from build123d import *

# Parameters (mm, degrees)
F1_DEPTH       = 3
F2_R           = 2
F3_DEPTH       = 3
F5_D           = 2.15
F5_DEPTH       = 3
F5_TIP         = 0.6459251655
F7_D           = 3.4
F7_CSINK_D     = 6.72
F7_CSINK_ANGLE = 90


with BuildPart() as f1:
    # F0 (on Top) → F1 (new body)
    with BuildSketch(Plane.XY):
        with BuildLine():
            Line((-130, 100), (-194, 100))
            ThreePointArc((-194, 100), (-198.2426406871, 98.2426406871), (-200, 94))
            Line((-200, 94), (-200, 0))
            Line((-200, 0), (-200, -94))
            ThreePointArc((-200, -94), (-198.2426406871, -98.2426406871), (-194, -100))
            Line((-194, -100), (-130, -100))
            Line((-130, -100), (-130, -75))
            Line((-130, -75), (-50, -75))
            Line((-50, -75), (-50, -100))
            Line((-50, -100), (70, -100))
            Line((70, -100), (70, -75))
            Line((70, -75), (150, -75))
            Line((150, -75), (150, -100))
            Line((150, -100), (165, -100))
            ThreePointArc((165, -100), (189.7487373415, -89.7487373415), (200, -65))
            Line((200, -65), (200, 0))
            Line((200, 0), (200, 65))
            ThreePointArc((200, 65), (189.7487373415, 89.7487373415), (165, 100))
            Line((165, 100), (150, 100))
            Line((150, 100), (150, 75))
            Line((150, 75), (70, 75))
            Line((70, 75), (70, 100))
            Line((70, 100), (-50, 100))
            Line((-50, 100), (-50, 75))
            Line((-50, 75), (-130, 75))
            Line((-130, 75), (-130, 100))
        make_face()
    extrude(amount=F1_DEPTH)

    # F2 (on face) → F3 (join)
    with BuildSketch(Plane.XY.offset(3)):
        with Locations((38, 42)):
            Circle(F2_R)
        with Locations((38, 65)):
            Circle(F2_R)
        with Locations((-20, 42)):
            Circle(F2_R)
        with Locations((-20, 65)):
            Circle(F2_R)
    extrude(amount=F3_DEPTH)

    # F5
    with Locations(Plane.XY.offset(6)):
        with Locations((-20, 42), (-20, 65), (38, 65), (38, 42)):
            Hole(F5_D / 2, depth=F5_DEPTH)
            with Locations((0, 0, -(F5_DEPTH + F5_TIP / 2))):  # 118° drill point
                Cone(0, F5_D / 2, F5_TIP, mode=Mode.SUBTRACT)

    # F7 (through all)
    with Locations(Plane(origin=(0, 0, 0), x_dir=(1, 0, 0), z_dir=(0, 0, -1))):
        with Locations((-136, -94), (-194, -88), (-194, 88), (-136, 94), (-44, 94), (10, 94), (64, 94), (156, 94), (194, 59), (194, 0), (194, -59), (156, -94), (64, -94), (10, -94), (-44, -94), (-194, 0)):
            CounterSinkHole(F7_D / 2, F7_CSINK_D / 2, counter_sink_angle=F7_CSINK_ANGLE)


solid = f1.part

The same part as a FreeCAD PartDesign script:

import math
import FreeCAD as App
import Part
import Sketcher
from FreeCAD import Vector
Q = App.Units.Quantity

doc = App.newDocument("Part")
body = doc.addObject("PartDesign::Body", "Body")

# Sketch on XY plane
sketch1 = body.newObject("Sketcher::SketchObject", "Sketch")
sketch1.AttachmentSupport = (doc.getObject("XY_Plane"), [""])
sketch1.MapMode = "FlatFace"
sketch1.addGeometry([
    Part.LineSegment(Vector(-130, 100, 0), Vector(-194, 100, 0)),  # 0
    Part.ArcOfCircle(Part.Circle(Vector(-194, 94, 0), Vector(0, 0, 1), 6), math.radians(90), math.radians(180)),  # 1
    Part.LineSegment(Vector(-200, 94, 0), Vector(-200, -94, 0)),  # 2
    Part.ArcOfCircle(Part.Circle(Vector(-194, -94, 0), Vector(0, 0, 1), 6), math.radians(180), math.radians(270)),  # 3
    Part.LineSegment(Vector(-194, -100, 0), Vector(-130, -100, 0)),  # 4
    Part.LineSegment(Vector(-130, -100, 0), Vector(-130, -75, 0)),  # 5
    Part.LineSegment(Vector(-130, -75, 0), Vector(-50, -75, 0)),  # 6
    Part.LineSegment(Vector(-50, -75, 0), Vector(-50, -100, 0)),  # 7
    Part.LineSegment(Vector(-50, -100, 0), Vector(70, -100, 0)),  # 8
    Part.LineSegment(Vector(70, -100, 0), Vector(70, -75, 0)),  # 9
    Part.LineSegment(Vector(70, -75, 0), Vector(150, -75, 0)),  # 10
    Part.LineSegment(Vector(150, -75, 0), Vector(150, -100, 0)),  # 11
    Part.LineSegment(Vector(150, -100, 0), Vector(165, -100, 0)),  # 12
    Part.ArcOfCircle(Part.Circle(Vector(165, -65, 0), Vector(0, 0, 1), 35), math.radians(-90), math.radians(0)),  # 13
    Part.LineSegment(Vector(200, -65, 0), Vector(200, 65, 0)),  # 14
    Part.ArcOfCircle(Part.Circle(Vector(165, 65, 0), Vector(0, 0, 1), 35), math.radians(0), math.radians(90)),  # 15
    Part.LineSegment(Vector(165, 100, 0), Vector(150, 100, 0)),  # 16
    Part.LineSegment(Vector(150, 100, 0), Vector(150, 75, 0)),  # 17
    Part.LineSegment(Vector(150, 75, 0), Vector(70, 75, 0)),  # 18
    Part.LineSegment(Vector(70, 75, 0), Vector(70, 100, 0)),  # 19
    Part.LineSegment(Vector(70, 100, 0), Vector(-50, 100, 0)),  # 20
    Part.LineSegment(Vector(-50, 100, 0), Vector(-50, 75, 0)),  # 21
    Part.LineSegment(Vector(-50, 75, 0), Vector(-130, 75, 0)),  # 22
    Part.LineSegment(Vector(-130, 75, 0), Vector(-130, 100, 0)),  # 23
], False)
sketch1.addConstraint([
    Sketcher.Constraint("Tangent", 0, 2, 1, 1),
    Sketcher.Constraint("Tangent", 1, 2, 2, 1),
    Sketcher.Constraint("Tangent", 2, 2, 3, 1),
    Sketcher.Constraint("Tangent", 3, 2, 4, 1),
    Sketcher.Constraint("Coincident", 4, 2, 5, 1),
    Sketcher.Constraint("Coincident", 5, 2, 6, 1),
    Sketcher.Constraint("Coincident", 6, 2, 7, 1),
    Sketcher.Constraint("Coincident", 7, 2, 8, 1),
    Sketcher.Constraint("Coincident", 8, 2, 9, 1),
    Sketcher.Constraint("Coincident", 9, 2, 10, 1),
    Sketcher.Constraint("Coincident", 10, 2, 11, 1),
    Sketcher.Constraint("Coincident", 11, 2, 12, 1),
    Sketcher.Constraint("Tangent", 12, 2, 13, 1),
    Sketcher.Constraint("Tangent", 13, 2, 14, 1),
    Sketcher.Constraint("Tangent", 14, 2, 15, 1),
    Sketcher.Constraint("Tangent", 15, 2, 16, 1),
    Sketcher.Constraint("Coincident", 16, 2, 17, 1),
    Sketcher.Constraint("Coincident", 17, 2, 18, 1),
    Sketcher.Constraint("Coincident", 18, 2, 19, 1),
    Sketcher.Constraint("Coincident", 19, 2, 20, 1),
    Sketcher.Constraint("Coincident", 20, 2, 21, 1),
    Sketcher.Constraint("Coincident", 21, 2, 22, 1),
    Sketcher.Constraint("Coincident", 22, 2, 23, 1),
    Sketcher.Constraint("Coincident", 23, 2, 0, 1),
    Sketcher.Constraint("Horizontal", 0),
    Sketcher.Constraint("Vertical", 2),
    Sketcher.Constraint("Horizontal", 4),
    Sketcher.Constraint("Vertical", 5),
    Sketcher.Constraint("Horizontal", 6),
    Sketcher.Constraint("Vertical", 7),
    Sketcher.Constraint("Horizontal", 8),
    Sketcher.Constraint("Vertical", 9),
    Sketcher.Constraint("Horizontal", 10),
    Sketcher.Constraint("Vertical", 11),
    Sketcher.Constraint("Horizontal", 12),
    Sketcher.Constraint("Vertical", 14),
    Sketcher.Constraint("Horizontal", 16),
    Sketcher.Constraint("Vertical", 17),
    Sketcher.Constraint("Horizontal", 18),
    Sketcher.Constraint("Vertical", 19),
    Sketcher.Constraint("Horizontal", 20),
    Sketcher.Constraint("Vertical", 21),
    Sketcher.Constraint("Horizontal", 22),
    Sketcher.Constraint("Vertical", 23),
    Sketcher.Constraint("Equal", 1, 3),
    Sketcher.Constraint("Equal", 13, 15),
    Sketcher.Constraint("Symmetric", 11, 2, 16, 2, -1),
    Sketcher.Constraint("Symmetric", 9, 2, 18, 2, -1),
    Sketcher.Constraint("Symmetric", 7, 2, 20, 2, -1),
    Sketcher.Constraint("Symmetric", 5, 2, 22, 2, -1),
    Sketcher.Constraint("Horizontal", 4, 2, 7, 2),
    Sketcher.Constraint("Horizontal", 6, 2, 9, 2),
    Sketcher.Constraint("Horizontal", 8, 2, 11, 2),
    Sketcher.Constraint("Horizontal", 0, 2, 15, 2),
    Sketcher.Constraint("Equal", 6, 10),
    Sketcher.Constraint("Radius", 1, Q("6 mm")),
    Sketcher.Constraint("Radius", 13, Q("35 mm")),
    Sketcher.Constraint("DistanceX", 0, 2, 0, 1, Q("64 mm")),
    Sketcher.Constraint("DistanceX", 6, 1, 6, 2, Q("80 mm")),
    Sketcher.Constraint("DistanceX", 8, 1, 8, 2, Q("120 mm")),
    Sketcher.Constraint("DistanceX", 12, 1, 12, 2, Q("15 mm")),
    Sketcher.Constraint("DistanceY", 2, 2, 2, 1, Q("188 mm")),
    Sketcher.Constraint("DistanceY", 5, 1, 5, 2, Q("25 mm")),
    Sketcher.Constraint("DistanceX", 1, 3, -1, 1, Q("194 mm")),
])
pad1 = body.newObject("PartDesign::Pad", "Pad")
pad1.Profile = sketch1
pad1.Length = 3

# Sketch on XY plane
sketch2 = body.newObject("Sketcher::SketchObject", "Sketch001")
sketch2.AttachmentSupport = (doc.getObject("XY_Plane"), [""])
sketch2.MapMode = "FlatFace"
sketch2.AttachmentOffset = App.Placement(Vector(0, 0, 3), App.Rotation())
sketch2.addGeometry([
    Part.Circle(Vector(38, 42, 0), Vector(0, 0, 1), 2),
    Part.Circle(Vector(38, 65, 0), Vector(0, 0, 1), 2),
    Part.Circle(Vector(-20, 42, 0), Vector(0, 0, 1), 2),
    Part.Circle(Vector(-20, 65, 0), Vector(0, 0, 1), 2),
], False)
sketch2.addConstraint([
    Sketcher.Constraint("Equal", 0, 1),
    Sketcher.Constraint("Equal", 1, 2),
    Sketcher.Constraint("Equal", 2, 3),
    Sketcher.Constraint("Horizontal", 0, 3, 2, 3),
    Sketcher.Constraint("Horizontal", 1, 3, 3, 3),
    Sketcher.Constraint("Vertical", 0, 3, 1, 3),
    Sketcher.Constraint("Vertical", 2, 3, 3, 3),
    Sketcher.Constraint("Diameter", 0, Q("4 mm")),
    Sketcher.Constraint("DistanceX", -1, 1, 0, 3, Q("38 mm")),
    Sketcher.Constraint("DistanceY", -1, 1, 0, 3, Q("42 mm")),
    Sketcher.Constraint("DistanceY", -1, 1, 1, 3, Q("65 mm")),
    Sketcher.Constraint("DistanceX", 2, 3, -1, 1, Q("20 mm")),
])
pad2 = body.newObject("PartDesign::Pad", "Pad001")
pad2.Profile = sketch2
pad2.Length = 3

# Sketch on XY plane
sketch3 = body.newObject("Sketcher::SketchObject", "Sketch002")
sketch3.AttachmentSupport = (doc.getObject("XY_Plane"), [""])
sketch3.MapMode = "FlatFace"
sketch3.AttachmentOffset = App.Placement(Vector(0, 0, 6), App.Rotation())
sketch3.addGeometry([
    Part.Circle(Vector(-20, 42, 0), Vector(0, 0, 1), 1.1),
    Part.Circle(Vector(-20, 65, 0), Vector(0, 0, 1), 1.1),
    Part.Circle(Vector(38, 65, 0), Vector(0, 0, 1), 1.1),
    Part.Circle(Vector(38, 42, 0), Vector(0, 0, 1), 1.1),
], False)
sketch3.addConstraint([
    Sketcher.Constraint("Equal", 0, 1),
    Sketcher.Constraint("Equal", 1, 2),
    Sketcher.Constraint("Equal", 2, 3),
    Sketcher.Constraint("Horizontal", 1, 3, 2, 3),
    Sketcher.Constraint("Horizontal", 0, 3, 3, 3),
    Sketcher.Constraint("Vertical", 0, 3, 1, 3),
    Sketcher.Constraint("Vertical", 2, 3, 3, 3),
    Sketcher.Constraint("Diameter", 0, Q("2.15 mm")),
    Sketcher.Constraint("DistanceX", 0, 3, -1, 1, Q("20 mm")),
    Sketcher.Constraint("DistanceY", -1, 1, 0, 3, Q("42 mm")),
    Sketcher.Constraint("DistanceY", -1, 1, 1, 3, Q("65 mm")),
    Sketcher.Constraint("DistanceX", -1, 1, 2, 3, Q("38 mm")),
])
doc.recompute()
hole = body.newObject("PartDesign::Hole", "Hole")
hole.Profile = sketch3
hole.ThreadType = "None"
hole.Diameter = 2.15
hole.DepthType = "Dimension"
hole.Depth = 3
hole.DrillPoint = "Angled"
hole.DrillPointAngle = 118

# Sketch on XY plane
sketch4 = body.newObject("Sketcher::SketchObject", "Sketch003")
sketch4.AttachmentSupport = (doc.getObject("XY_Plane"), [""])
sketch4.MapMode = "FlatFace"
sketch4.addGeometry([
    Part.Circle(Vector(-136, 94, 0), Vector(0, 0, 1), 1.7),  # 0
    Part.Circle(Vector(-194, 88, 0), Vector(0, 0, 1), 1.7),  # 1
    Part.Circle(Vector(-194, -88, 0), Vector(0, 0, 1), 1.7),  # 2
    Part.Circle(Vector(-136, -94, 0), Vector(0, 0, 1), 1.7),  # 3
    Part.Circle(Vector(-44, -94, 0), Vector(0, 0, 1), 1.7),  # 4
    Part.Circle(Vector(10, -94, 0), Vector(0, 0, 1), 1.7),  # 5
    Part.Circle(Vector(64, -94, 0), Vector(0, 0, 1), 1.7),  # 6
    Part.Circle(Vector(156, -94, 0), Vector(0, 0, 1), 1.7),  # 7
    Part.Circle(Vector(194, -59, 0), Vector(0, 0, 1), 1.7),  # 8
    Part.Circle(Vector(194, 0, 0), Vector(0, 0, 1), 1.7),  # 9
    Part.Circle(Vector(194, 59, 0), Vector(0, 0, 1), 1.7),  # 10
    Part.Circle(Vector(156, 94, 0), Vector(0, 0, 1), 1.7),  # 11
    Part.Circle(Vector(64, 94, 0), Vector(0, 0, 1), 1.7),  # 12
    Part.Circle(Vector(10, 94, 0), Vector(0, 0, 1), 1.7),  # 13
    Part.Circle(Vector(-44, 94, 0), Vector(0, 0, 1), 1.7),  # 14
    Part.Circle(Vector(-194, 0, 0), Vector(0, 0, 1), 1.7),  # 15
], False)
sketch4.addConstraint([
    Sketcher.Constraint("Equal", 0, 1),
    Sketcher.Constraint("Equal", 1, 2),
    Sketcher.Constraint("Equal", 2, 3),
    Sketcher.Constraint("Equal", 3, 4),
    Sketcher.Constraint("Equal", 4, 5),
    Sketcher.Constraint("Equal", 5, 6),
    Sketcher.Constraint("Equal", 6, 7),
    Sketcher.Constraint("Equal", 7, 8),
    Sketcher.Constraint("Equal", 8, 9),
    Sketcher.Constraint("Equal", 9, 10),
    Sketcher.Constraint("Equal", 10, 11),
    Sketcher.Constraint("Equal", 11, 12),
    Sketcher.Constraint("Equal", 12, 13),
    Sketcher.Constraint("Equal", 13, 14),
    Sketcher.Constraint("Equal", 14, 15),
    Sketcher.Constraint("Symmetric", 9, 3, 15, 3, -1, 1),
    Sketcher.Constraint("Symmetric", 1, 3, 2, 3, -1),
    Sketcher.Constraint("Symmetric", 0, 3, 3, 3, -1),
    Sketcher.Constraint("Symmetric", 8, 3, 10, 3, -1),
    Sketcher.Constraint("Symmetric", 7, 3, 11, 3, -1),
    Sketcher.Constraint("Symmetric", 6, 3, 12, 3, -1),
    Sketcher.Constraint("Symmetric", 5, 3, 13, 3, -1),
    Sketcher.Constraint("Symmetric", 4, 3, 14, 3, -1),
    Sketcher.Constraint("PointOnObject", 9, 3, -1),
    Sketcher.Constraint("Horizontal", 3, 3, 4, 3),
    Sketcher.Constraint("Horizontal", 4, 3, 5, 3),
    Sketcher.Constraint("Horizontal", 5, 3, 6, 3),
    Sketcher.Constraint("Horizontal", 6, 3, 7, 3),
    Sketcher.Constraint("Vertical", 8, 3, 9, 3),
    Sketcher.Constraint("Vertical", 2, 3, 15, 3),
    Sketcher.Constraint("Diameter", 0, Q("3.4 mm")),
    Sketcher.Constraint("DistanceX", 0, 3, -1, 1, Q("136 mm")),
    Sketcher.Constraint("DistanceY", -1, 1, 0, 3, Q("94 mm")),
    Sketcher.Constraint("DistanceX", 1, 3, -1, 1, Q("194 mm")),
    Sketcher.Constraint("DistanceY", -1, 1, 1, 3, Q("88 mm")),
    Sketcher.Constraint("DistanceX", 4, 3, -1, 1, Q("44 mm")),
    Sketcher.Constraint("DistanceX", -1, 1, 5, 3, Q("10 mm")),
    Sketcher.Constraint("DistanceX", -1, 1, 6, 3, Q("64 mm")),
    Sketcher.Constraint("DistanceX", -1, 1, 7, 3, Q("156 mm")),
    Sketcher.Constraint("DistanceY", 8, 3, -1, 1, Q("59 mm")),
])
doc.recompute()
hole2 = body.newObject("PartDesign::Hole", "Hole001")
hole2.Profile = sketch4
hole2.ThreadType = "None"
hole2.Diameter = 3.4
hole2.DepthType = "ThroughAll"
hole2.HoleCutType = "Countersink"
hole2.HoleCutDiameter = 6.72
hole2.HoleCutCountersinkAngle = 90
hole2.Reversed = True

doc.recompute()
